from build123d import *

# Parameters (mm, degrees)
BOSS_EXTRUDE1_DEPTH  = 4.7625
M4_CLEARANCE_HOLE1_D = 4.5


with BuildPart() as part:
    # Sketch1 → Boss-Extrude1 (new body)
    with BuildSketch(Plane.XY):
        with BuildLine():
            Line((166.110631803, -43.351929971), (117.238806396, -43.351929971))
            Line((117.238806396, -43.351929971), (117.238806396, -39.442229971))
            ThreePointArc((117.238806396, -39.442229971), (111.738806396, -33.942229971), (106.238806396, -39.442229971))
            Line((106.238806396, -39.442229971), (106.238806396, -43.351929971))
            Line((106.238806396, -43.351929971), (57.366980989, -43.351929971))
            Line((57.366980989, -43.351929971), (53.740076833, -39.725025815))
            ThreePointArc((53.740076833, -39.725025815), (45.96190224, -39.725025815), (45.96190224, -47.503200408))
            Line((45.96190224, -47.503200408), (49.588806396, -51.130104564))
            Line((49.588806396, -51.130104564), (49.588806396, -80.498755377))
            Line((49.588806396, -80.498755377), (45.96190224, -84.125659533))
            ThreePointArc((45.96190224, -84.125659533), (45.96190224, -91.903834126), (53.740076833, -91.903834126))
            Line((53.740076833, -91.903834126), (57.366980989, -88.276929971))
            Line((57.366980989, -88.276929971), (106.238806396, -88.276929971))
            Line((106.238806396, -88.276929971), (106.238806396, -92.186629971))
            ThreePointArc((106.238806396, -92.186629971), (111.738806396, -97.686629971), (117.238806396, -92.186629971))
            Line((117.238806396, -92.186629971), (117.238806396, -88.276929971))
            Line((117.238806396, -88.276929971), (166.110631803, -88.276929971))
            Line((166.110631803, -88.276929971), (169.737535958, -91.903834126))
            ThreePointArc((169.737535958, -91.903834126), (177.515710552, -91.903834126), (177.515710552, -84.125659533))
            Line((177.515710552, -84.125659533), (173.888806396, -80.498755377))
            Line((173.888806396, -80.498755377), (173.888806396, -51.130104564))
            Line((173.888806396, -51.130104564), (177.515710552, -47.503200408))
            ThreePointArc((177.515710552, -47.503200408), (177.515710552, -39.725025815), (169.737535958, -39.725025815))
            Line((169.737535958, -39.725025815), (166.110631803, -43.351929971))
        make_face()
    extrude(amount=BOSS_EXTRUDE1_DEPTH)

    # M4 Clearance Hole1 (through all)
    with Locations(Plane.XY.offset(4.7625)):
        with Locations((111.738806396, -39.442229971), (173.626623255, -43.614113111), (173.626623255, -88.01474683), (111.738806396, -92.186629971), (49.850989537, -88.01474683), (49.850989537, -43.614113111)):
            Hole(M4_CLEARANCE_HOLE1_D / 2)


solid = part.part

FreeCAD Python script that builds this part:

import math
import FreeCAD as App
import Part
import Sketcher
from FreeCAD import Vector
Q = App.Units.Quantity

doc = App.newDocument("Part")
params = doc.addObject("Spreadsheet::Sheet", "Params")
for row, (alias, value) in enumerate([
    ("sketch1_radius", "5.5 mm"),
    ("pad1_length", "4.7625 mm"),
    ("sketch2_diameter", "4.5 mm"),
    ("hole_diameter", "4.5 mm"),
], start=1):
    params.set(f"A{row}", alias)
    params.set(f"B{row}", "=" + value)
    params.setAlias(f"B{row}", alias)

body = doc.addObject("PartDesign::Body", "Body")

# Sketch on XY plane
sketch1 = doc.addObject("Sketcher::SketchObject", "Sketch")
body.addObject(sketch1)
sketch1.AttachmentSupport = (doc.XY_Plane, [""])
sketch1.MapMode = "FlatFace"
sketch1.addGeometry(Part.LineSegment(Vector(166.110632, -43.35193, 0), Vector(117.238806, -43.35193, 0)), False)
sketch1.addGeometry(Part.LineSegment(Vector(117.238806, -43.35193, 0), Vector(117.238806, -39.44223, 0)), False)
sketch1.addGeometry(Part.ArcOfCircle(Part.Circle(Vector(111.738806, -39.44223, 0), Vector(0, 0, 1), 5.5), math.radians(0), math.radians(180)), False)
sketch1.addGeometry(Part.LineSegment(Vector(106.238806, -39.44223, 0), Vector(106.238806, -43.35193, 0)), False)
sketch1.addGeometry(Part.LineSegment(Vector(106.238806, -43.35193, 0), Vector(57.366981, -43.35193, 0)), False)
sketch1.addGeometry(Part.LineSegment(Vector(57.366981, -43.35193, 0), Vector(53.740077, -39.725026, 0)), False)
sketch1.addGeometry(Part.ArcOfCircle(Part.Circle(Vector(49.85099, -43.614113, 0), Vector(0, 0, 1), 5.5), math.radians(45), math.radians(225)), False)
sketch1.addGeometry(Part.LineSegment(Vector(45.961902, -47.5032, 0), Vector(49.588806, -51.130105, 0)), False)
sketch1.addGeometry(Part.LineSegment(Vector(49.588806, -51.130105, 0), Vector(49.588806, -80.498755, 0)), False)
sketch1.addGeometry(Part.LineSegment(Vector(49.588806, -80.498755, 0), Vector(45.961902, -84.12566, 0)), False)
sketch1.addGeometry(Part.ArcOfCircle(Part.Circle(Vector(49.85099, -88.014747, 0), Vector(0, 0, 1), 5.5), math.radians(135), math.radians(315)), False)
sketch1.addGeometry(Part.LineSegment(Vector(53.740077, -91.903834, 0), Vector(57.366981, -88.27693, 0)), False)
sketch1.addGeometry(Part.LineSegment(Vector(57.366981, -88.27693, 0), Vector(106.238806, -88.27693, 0)), False)
sketch1.addGeometry(Part.LineSegment(Vector(106.238806, -88.27693, 0), Vector(106.238806, -92.18663, 0)), False)
sketch1.addGeometry(Part.ArcOfCircle(Part.Circle(Vector(111.738806, -92.18663, 0), Vector(0, 0, 1), 5.5), math.radians(180), math.radians(360)), False)
sketch1.addGeometry(Part.LineSegment(Vector(117.238806, -92.18663, 0), Vector(117.238806, -88.27693, 0)), False)
sketch1.addGeometry(Part.LineSegment(Vector(117.238806, -88.27693, 0), Vector(166.110632, -88.27693, 0)), False)
sketch1.addGeometry(Part.LineSegment(Vector(166.110632, -88.27693, 0), Vector(169.737536, -91.903834, 0)), False)
sketch1.addGeometry(Part.ArcOfCircle(Part.Circle(Vector(173.626623, -88.014747, 0), Vector(0, 0, 1), 5.5), math.radians(-135), math.radians(45)), False)
sketch1.addGeometry(Part.LineSegment(Vector(177.515711, -84.12566, 0), Vector(173.888806, -80.498755, 0)), False)
sketch1.addGeometry(Part.LineSegment(Vector(173.888806, -80.498755, 0), Vector(173.888806, -51.130105, 0)), False)
sketch1.addGeometry(Part.LineSegment(Vector(173.888806, -51.130105, 0), Vector(177.515711, -47.5032, 0)), False)
sketch1.addGeometry(Part.ArcOfCircle(Part.Circle(Vector(173.626623, -43.614113, 0), Vector(0, 0, 1), 5.5), math.radians(-45), math.radians(135)), False)
sketch1.addGeometry(Part.LineSegment(Vector(169.737536, -39.725026, 0), Vector(166.110632, -43.35193, 0)), False)
sketch1.addConstraint(Sketcher.Constraint("Coincident", 0, 2, 1, 1))
sketch1.addConstraint(Sketcher.Constraint("Tangent", 1, 2, 2, 1))
sketch1.addConstraint(Sketcher.Constraint("Tangent", 2, 2, 3, 1))
sketch1.addConstraint(Sketcher.Constraint("Coincident", 3, 2, 4, 1))
sketch1.addConstraint(Sketcher.Constraint("Coincident", 4, 2, 5, 1))
sketch1.addConstraint(Sketcher.Constraint("Tangent", 5, 2, 6, 1))
sketch1.addConstraint(Sketcher.Constraint("Tangent", 6, 2, 7, 1))
sketch1.addConstraint(Sketcher.Constraint("Coincident", 7, 2, 8, 1))
sketch1.addConstraint(Sketcher.Constraint("Coincident", 8, 2, 9, 1))
sketch1.addConstraint(Sketcher.Constraint("Tangent", 9, 2, 10, 1))
sketch1.addConstraint(Sketcher.Constraint("Tangent", 10, 2, 11, 1))
sketch1.addConstraint(Sketcher.Constraint("Coincident", 11, 2, 12, 1))
sketch1.addConstraint(Sketcher.Constraint("Coincident", 12, 2, 13, 1))
sketch1.addConstraint(Sketcher.Constraint("Tangent", 13, 2, 14, 1))
sketch1.addConstraint(Sketcher.Constraint("Tangent", 14, 2, 15, 1))
sketch1.addConstraint(Sketcher.Constraint("Coincident", 15, 2, 16, 1))
sketch1.addConstraint(Sketcher.Constraint("Coincident", 16, 2, 17, 1))
sketch1.addConstraint(Sketcher.Constraint("Tangent", 17, 2, 18, 1))
sketch1.addConstraint(Sketcher.Constraint("Tangent", 18, 2, 19, 1))
sketch1.addConstraint(Sketcher.Constraint("Coincident", 19, 2, 20, 1))
sketch1.addConstraint(Sketcher.Constraint("Coincident", 20, 2, 21, 1))
sketch1.addConstraint(Sketcher.Constraint("Tangent", 21, 2, 22, 1))
sketch1.addConstraint(Sketcher.Constraint("Tangent", 22, 2, 23, 1))
sketch1.addConstraint(Sketcher.Constraint("Coincident", 23, 2, 0, 1))
sketch1.addConstraint(Sketcher.Constraint("Horizontal", 0))
sketch1.addConstraint(Sketcher.Constraint("Vertical", 1))
sketch1.addConstraint(Sketcher.Constraint("Vertical", 3))
sketch1.addConstraint(Sketcher.Constraint("Horizontal", 4))
sketch1.addConstraint(Sketcher.Constraint("Vertical", 8))
sketch1.addConstraint(Sketcher.Constraint("Horizontal", 12))
sketch1.addConstraint(Sketcher.Constraint("Vertical", 13))
sketch1.addConstraint(Sketcher.Constraint("Vertical", 15))
sketch1.addConstraint(Sketcher.Constraint("Horizontal", 16))
sketch1.addConstraint(Sketcher.Constraint("Vertical", 20))
sketch1.addConstraint(Sketcher.Constraint("Equal", 2, 6))
sketch1.addConstraint(Sketcher.Constraint("Equal", 6, 10))
sketch1.addConstraint(Sketcher.Constraint("Equal", 10, 14))
sketch1.addConstraint(Sketcher.Constraint("Equal", 14, 18))
sketch1.addConstraint(Sketcher.Constraint("Equal", 18, 22))
sketch1.addConstraint(Sketcher.Constraint("Parallel", 5, 7))
sketch1.addConstraint(Sketcher.Constraint("Perpendicular", 7, 9))
sketch1.addConstraint(Sketcher.Constraint("Parallel", 9, 11))
sketch1.addConstraint(Sketcher.Constraint("Perpendicular", 11, 17))
sketch1.addConstraint(Sketcher.Constraint("Parallel", 17, 19))
sketch1.addConstraint(Sketcher.Constraint("Perpendicular", 19, 21))
sketch1.addConstraint(Sketcher.Constraint("Parallel", 21, 23))
sketch1.addConstraint(Sketcher.Constraint("Horizontal", 10, 3, 18, 3))
sketch1.addConstraint(Sketcher.Constraint("Horizontal", 6, 3, 22, 3))
sketch1.addConstraint(Sketcher.Constraint("Horizontal", 0, 2, 3, 2))
sketch1.addConstraint(Sketcher.Constraint("Horizontal", 12, 2, 15, 2))
sketch1.addConstraint(Sketcher.Constraint("Horizontal", 10, 2, 17, 2))
sketch1.addConstraint(Sketcher.Constraint("Horizontal", 8, 2, 19, 2))
sketch1.addConstraint(Sketcher.Constraint("Horizontal", 7, 2, 20, 2))
sketch1.addConstraint(Sketcher.Constraint("Vertical", 6, 3, 10, 3))
sketch1.addConstraint(Sketcher.Constraint("Vertical", 2, 3, 14, 3))
sketch1.addConstraint(Sketcher.Constraint("Vertical", 4, 2, 11, 2))
sketch1.addConstraint(Sketcher.Constraint("Equal", 0, 4))
sketch1.addConstraint(Sketcher.Constraint("Equal", 3, 13))
sketch1.addConstraint(Sketcher.Constraint("Equal", 5, 7))
sketch1.addConstraint(Sketcher.Constraint("Radius", 2, Q("5.5 mm")))
sketch1.addConstraint(Sketcher.Constraint("DistanceY", 1, 1, 1, 2, Q("3.9097 mm")))
sketch1.addConstraint(Sketcher.Constraint("DistanceY", 12, 2, 3, 2, Q("44.925 mm")))
sketch1.addConstraint(Sketcher.Constraint("DistanceY", 6, 2, -1, 1, Q("47.5032 mm")))
sketch1.addConstraint(Sketcher.Constraint("DistanceX", 0, 2, 0, 1, Q("48.871825 mm")))
sketch1.addConstraint(Sketcher.Constraint("DistanceY", 2, 3, -1, 1, Q("39.44223 mm")))
sketch1.addConstraint(Sketcher.Constraint("DistanceX", -1, 1, 6, 3, Q("49.85099 mm")))
sketch1.setExpression("Constraints[59]", "Params.sketch1_radius")
pad1 = doc.addObject("PartDesign::Pad", "Pad")
body.addObject(pad1)
pad1.Profile = sketch1
pad1.setExpression("Length", "Params.pad1_length")

# Sketch on XY plane
sketch2 = doc.addObject("Sketcher::SketchObject", "Sketch001")
body.addObject(sketch2)
sketch2.AttachmentSupport = (doc.XY_Plane, [""])
sketch2.MapMode = "FlatFace"
sketch2.AttachmentOffset = App.Placement(Vector(0, 0, 4.7625), App.Rotation())
sketch2.addGeometry(Part.Circle(Vector(111.738806, -39.44223, 0), Vector(0, 0, 1), 2.25), False)
sketch2.addGeometry(Part.Circle(Vector(173.626623, -43.614113, 0), Vector(0, 0, 1), 2.25), False)
sketch2.addGeometry(Part.Circle(Vector(173.626623, -88.014747, 0), Vector(0, 0, 1), 2.25), False)
sketch2.addGeometry(Part.Circle(Vector(111.738806, -92.18663, 0), Vector(0, 0, 1), 2.25), False)
sketch2.addGeometry(Part.Circle(Vector(49.85099, -88.014747, 0), Vector(0, 0, 1), 2.25), False)
sketch2.addGeometry(Part.Circle(Vector(49.85099, -43.614113, 0), Vector(0, 0, 1), 2.25), False)
sketch2.addConstraint(Sketcher.Constraint("Equal", 0, 1))
sketch2.addConstraint(Sketcher.Constraint("Equal", 1, 2))
sketch2.addConstraint(Sketcher.Constraint("Equal", 2, 3))
sketch2.addConstraint(Sketcher.Constraint("Equal", 3, 4))
sketch2.addConstraint(Sketcher.Constraint("Equal", 4, 5))
sketch2.addConstraint(Sketcher.Constraint("Horizontal", 2, 3, 4, 3))
sketch2.addConstraint(Sketcher.Constraint("Horizontal", 1, 3, 5, 3))
sketch2.addConstraint(Sketcher.Constraint("Vertical", 1, 3, 2, 3))
sketch2.addConstraint(Sketcher.Constraint("Vertical", 0, 3, 3, 3))
sketch2.addConstraint(Sketcher.Constraint("Vertical", 4, 3, 5, 3))
sketch2.addConstraint(Sketcher.Constraint("Diameter", 0, Q("4.5 mm")))
sketch2.addConstraint(Sketcher.Constraint("DistanceY", 3, 3, 0, 3, Q("52.7444 mm")))
sketch2.addConstraint(Sketcher.Constraint("DistanceY", 0, 3, -1, 1, Q("39.44223 mm")))
sketch2.addConstraint(Sketcher.Constraint("DistanceX", -1, 1, 4, 3, Q("49.85099 mm")))
sketch2.addConstraint(Sketcher.Constraint("DistanceX", -1, 1, 0, 3, Q("111.738806 mm")))
sketch2.addConstraint(Sketcher.Constraint("DistanceX", -1, 1, 1, 3, Q("173.626623 mm")))
sketch2.addConstraint(Sketcher.Constraint("DistanceY", 1, 3, -1, 1, Q("43.614113 mm")))
sketch2.addConstraint(Sketcher.Constraint("DistanceY", 2, 3, -1, 1, Q("88.014747 mm")))
sketch2.setExpression("Constraints[10]", "Params.sketch2_diameter")
doc.recompute()
hole = doc.addObject("PartDesign::Hole", "Hole")
body.addObject(hole)
hole.Profile = sketch2
hole.ThreadType = "None"
hole.setExpression("Diameter", "Params.hole_diameter")
hole.DepthType = "ThroughAll"

doc.recompute()
